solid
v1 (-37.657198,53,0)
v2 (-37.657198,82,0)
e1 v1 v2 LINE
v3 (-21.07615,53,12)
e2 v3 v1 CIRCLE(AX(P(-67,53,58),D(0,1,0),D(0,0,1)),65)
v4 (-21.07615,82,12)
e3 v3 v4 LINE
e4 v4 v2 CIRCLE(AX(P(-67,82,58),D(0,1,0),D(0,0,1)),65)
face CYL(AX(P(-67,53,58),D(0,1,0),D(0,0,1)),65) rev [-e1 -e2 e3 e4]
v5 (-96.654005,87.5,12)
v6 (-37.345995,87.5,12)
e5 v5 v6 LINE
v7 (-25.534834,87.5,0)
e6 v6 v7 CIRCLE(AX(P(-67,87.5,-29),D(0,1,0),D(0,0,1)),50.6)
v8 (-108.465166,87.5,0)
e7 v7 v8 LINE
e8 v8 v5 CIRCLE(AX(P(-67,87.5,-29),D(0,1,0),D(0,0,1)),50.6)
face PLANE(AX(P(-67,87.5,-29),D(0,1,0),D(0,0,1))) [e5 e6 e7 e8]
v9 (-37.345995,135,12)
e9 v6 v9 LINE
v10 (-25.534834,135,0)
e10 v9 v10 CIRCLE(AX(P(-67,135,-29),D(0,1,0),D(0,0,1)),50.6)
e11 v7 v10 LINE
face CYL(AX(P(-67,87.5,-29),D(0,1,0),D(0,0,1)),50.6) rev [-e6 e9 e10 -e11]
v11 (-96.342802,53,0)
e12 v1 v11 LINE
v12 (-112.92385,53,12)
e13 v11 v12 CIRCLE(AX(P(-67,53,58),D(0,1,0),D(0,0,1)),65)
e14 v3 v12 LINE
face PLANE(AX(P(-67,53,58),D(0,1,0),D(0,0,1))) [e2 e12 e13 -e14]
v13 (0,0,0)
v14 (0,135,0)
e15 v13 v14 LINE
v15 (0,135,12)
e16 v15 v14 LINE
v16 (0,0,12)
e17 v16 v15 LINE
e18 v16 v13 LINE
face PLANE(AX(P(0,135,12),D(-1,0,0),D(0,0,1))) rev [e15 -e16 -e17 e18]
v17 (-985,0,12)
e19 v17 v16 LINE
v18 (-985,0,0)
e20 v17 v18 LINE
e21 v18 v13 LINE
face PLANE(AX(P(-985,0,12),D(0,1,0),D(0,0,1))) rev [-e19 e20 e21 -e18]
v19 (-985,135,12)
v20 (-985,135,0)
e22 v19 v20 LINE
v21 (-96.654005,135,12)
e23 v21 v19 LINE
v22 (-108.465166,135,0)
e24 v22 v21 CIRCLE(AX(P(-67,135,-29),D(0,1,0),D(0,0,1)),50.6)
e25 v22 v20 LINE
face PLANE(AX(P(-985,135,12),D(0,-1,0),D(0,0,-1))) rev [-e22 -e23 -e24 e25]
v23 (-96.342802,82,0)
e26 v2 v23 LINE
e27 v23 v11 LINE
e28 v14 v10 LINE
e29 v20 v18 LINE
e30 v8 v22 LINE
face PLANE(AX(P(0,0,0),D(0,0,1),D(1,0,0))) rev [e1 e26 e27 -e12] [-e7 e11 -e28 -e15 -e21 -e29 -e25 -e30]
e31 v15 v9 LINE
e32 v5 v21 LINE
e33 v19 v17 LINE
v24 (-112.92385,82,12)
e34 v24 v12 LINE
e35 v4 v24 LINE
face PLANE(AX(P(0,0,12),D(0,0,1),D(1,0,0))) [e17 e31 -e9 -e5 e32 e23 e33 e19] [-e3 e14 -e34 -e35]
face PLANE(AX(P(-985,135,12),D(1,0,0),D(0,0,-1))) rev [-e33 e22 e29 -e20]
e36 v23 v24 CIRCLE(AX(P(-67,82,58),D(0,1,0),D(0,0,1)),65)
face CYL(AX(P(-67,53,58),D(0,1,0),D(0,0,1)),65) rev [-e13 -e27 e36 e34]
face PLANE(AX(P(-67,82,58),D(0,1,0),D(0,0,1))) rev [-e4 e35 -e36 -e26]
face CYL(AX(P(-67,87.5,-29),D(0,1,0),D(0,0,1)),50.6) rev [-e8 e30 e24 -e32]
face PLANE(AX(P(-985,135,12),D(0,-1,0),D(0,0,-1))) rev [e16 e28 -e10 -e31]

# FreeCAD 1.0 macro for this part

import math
import FreeCAD as App
import Part
import Sketcher

V = App.Vector

doc = App.newDocument("Part")
params = doc.addObject("Spreadsheet::Sheet", "Params")
for row, (alias, value) in enumerate([
    ("sketch1_width", "985 mm"),
    ("sketch1_height", "135 mm"),
    ("pad1_length", "12 mm"),
    ("sketch2_radius", "50.6 mm"),
    ("pocket1_length", "47.5 mm"),
    ("sketch3_diameter", "130 mm"),
    ("pocket2_length", "29 mm"),
], start=1):
    params.set(f"A{row}", alias)
    params.set(f"B{row}", "=" + value)
    params.setAlias(f"B{row}", alias)

body = doc.addObject("PartDesign::Body", "Body")

sketch1 = body.newObject("Sketcher::SketchObject", "Sketch")
sketch1.AttachmentSupport = (doc.getObject("XY_Plane"), [""])
sketch1.MapMode = "FlatFace"
sketch1.addGeometry(Part.LineSegment(V(-985, 135, 0), V(-985, 0, 0)), False)
sketch1.addGeometry(Part.LineSegment(V(-985, 0, 0), V(0, 0, 0)), False)
sketch1.addGeometry(Part.LineSegment(V(0, 0, 0), V(0, 135, 0)), False)
sketch1.addGeometry(Part.LineSegment(V(0, 135, 0), V(-985, 135, 0)), False)
sketch1.addConstraint(Sketcher.Constraint("Coincident", 0, 2, 1, 1))
sketch1.addConstraint(Sketcher.Constraint("Coincident", 1, 2, 2, 1))
sketch1.addConstraint(Sketcher.Constraint("Coincident", 2, 2, 3, 1))
sketch1.addConstraint(Sketcher.Constraint("Coincident", 3, 2, 0, 1))
sketch1.addConstraint(Sketcher.Constraint("Vertical", 0))
sketch1.addConstraint(Sketcher.Constraint("Horizontal", 1))
sketch1.addConstraint(Sketcher.Constraint("Vertical", 2))
sketch1.addConstraint(Sketcher.Constraint("Horizontal", 3))
sketch1.addConstraint(Sketcher.Constraint("Coincident", 1, 2, -1, 1))
sketch1.addConstraint(Sketcher.Constraint("DistanceX", 1, 1, 1, 2, 985.0))
sketch1.addConstraint(Sketcher.Constraint("DistanceY", 0, 2, 0, 1, 135.0))
sketch1.setExpression("Constraints[9]", "Params.sketch1_width")
sketch1.setExpression("Constraints[10]", "Params.sketch1_height")
pad1 = body.newObject("PartDesign::Pad", "Pad")
pad1.Profile = sketch1
pad1.setExpression("Length", "Params.pad1_length")

sketch2 = body.newObject("Sketcher::SketchObject", "Sketch001")
sketch2.AttachmentSupport = (doc.getObject("XZ_Plane"), [""])
sketch2.MapMode = "FlatFace"
sketch2.AttachmentOffset = App.Placement(V(0, 0, -135), App.Rotation())
sketch2.addGeometry(Part.LineSegment(V(-25.534834, 0, 0), V(-108.465166, 0, 0)), False)
sketch2.addGeometry(Part.ArcOfCircle(Part.Circle(V(-67, -29, 0), V(0, 0, 1), 50.6), math.radians(125.877027), math.radians(145.031742)), False)
sketch2.addGeometry(Part.LineSegment(V(-96.654005, 12, 0), V(-37.345995, 12, 0)), False)
sketch2.addGeometry(Part.ArcOfCircle(Part.Circle(V(-67, -29, 0), V(0, 0, 1), 50.6), math.radians(34.968258), math.radians(54.122973)), False)
sketch2.addConstraint(Sketcher.Constraint("Coincident", 0, 2, 1, 2))
sketch2.addConstraint(Sketcher.Constraint("Coincident", 1, 1, 2, 1))
sketch2.addConstraint(Sketcher.Constraint("Coincident", 2, 2, 3, 2))
sketch2.addConstraint(Sketcher.Constraint("Coincident", 3, 1, 0, 1))
sketch2.addConstraint(Sketcher.Constraint("Horizontal", 0))
sketch2.addConstraint(Sketcher.Constraint("Horizontal", 2))
sketch2.addConstraint(Sketcher.Constraint("Coincident", 3, 3, 1, 3))
sketch2.addConstraint(Sketcher.Constraint("Equal", 1, 3))
sketch2.addConstraint(Sketcher.Constraint("PointOnObject", 0, 2, -1))
sketch2.addConstraint(Sketcher.Constraint("Radius", 1, 50.6))
sketch2.addConstraint(Sketcher.Constraint("DistanceX", 1, 3, -1, 1, 67.0))
sketch2.addConstraint(Sketcher.Constraint("DistanceY", 1, 3, -1, 1, 29.0))
sketch2.addConstraint(Sketcher.Constraint("DistanceY", -1, 1, 1, 1, 12.0))
sketch2.setExpression("Constraints[9]", "Params.sketch2_radius")
pocket1 = body.newObject("PartDesign::Pocket", "Pocket")
pocket1.Profile = sketch2
pocket1.setExpression("Length", "Params.pocket1_length")
pocket1.Reversed = True

sketch3 = body.newObject("Sketcher::SketchObject", "Sketch002")
sketch3.AttachmentSupport = (doc.getObject("XZ_Plane"), [""])
sketch3.MapMode = "FlatFace"
sketch3.AttachmentOffset = App.Placement(V(0, 0, -82), App.Rotation())
sketch3.addGeometry(Part.Circle(V(-67, 58, 0), V(0, 0, 1), 65), False)
sketch3.addConstraint(Sketcher.Constraint("Diameter", 0, 130.0))
sketch3.addConstraint(Sketcher.Constraint("DistanceX", 0, 3, -1, 1, 67.0))
sketch3.addConstraint(Sketcher.Constraint("DistanceY", -1, 1, 0, 3, 58.0))
sketch3.setExpression("Constraints[0]", "Params.sketch3_diameter")
pocket2 = body.newObject("PartDesign::Pocket", "Pocket001")
pocket2.Profile = sketch3
pocket2.setExpression("Length", "Params.pocket2_length")
pocket2.Reversed = True

doc.recompute()
